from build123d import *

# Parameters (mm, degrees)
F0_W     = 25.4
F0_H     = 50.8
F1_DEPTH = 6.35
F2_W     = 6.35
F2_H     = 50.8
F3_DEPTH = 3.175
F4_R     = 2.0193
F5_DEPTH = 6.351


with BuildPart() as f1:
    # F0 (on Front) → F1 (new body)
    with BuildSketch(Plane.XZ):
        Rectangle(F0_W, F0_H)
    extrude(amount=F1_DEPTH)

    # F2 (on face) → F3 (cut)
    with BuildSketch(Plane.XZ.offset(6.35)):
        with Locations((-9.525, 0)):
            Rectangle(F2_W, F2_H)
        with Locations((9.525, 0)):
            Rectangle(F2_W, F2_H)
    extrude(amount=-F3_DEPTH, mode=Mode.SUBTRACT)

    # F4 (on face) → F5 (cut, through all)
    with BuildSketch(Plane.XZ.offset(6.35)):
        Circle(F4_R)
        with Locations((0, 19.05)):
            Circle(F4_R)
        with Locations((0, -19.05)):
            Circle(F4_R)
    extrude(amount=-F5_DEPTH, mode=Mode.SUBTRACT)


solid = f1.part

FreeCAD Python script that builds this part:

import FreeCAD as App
import Part
import Sketcher
Q = App.Units.Quantity


def add_polygon(sketch, points):
    """Adds a closed chain of lines whose ends are joined by coincident constraints."""
    first, n = sketch.GeometryCount, len(points)
    for a, b in zip(points, points[1:] + points[:1]):
        sketch.addGeometry(Part.LineSegment(App.Vector(*a, 0), App.Vector(*b, 0)), False)
    for i in range(n):
        sketch.addConstraint(Sketcher.Constraint("Coincident", first + i, 2, first + (i + 1) % n, 1))

doc = App.newDocument("Part")
body = doc.addObject("PartDesign::Body", "Body")

# Sketch on XZ plane
sketch1 = doc.addObject("Sketcher::SketchObject", "Sketch")
body.addObject(sketch1)
sketch1.AttachmentSupport = (doc.XZ_Plane, [""])
sketch1.MapMode = "FlatFace"
add_polygon(sketch1, [(-13, 25), (-13, -25), (13, -25), (13, 25)])  # lines 0-3
sketch1.addConstraint([
    Sketcher.Constraint("Vertical", 0),
    Sketcher.Constraint("Horizontal", 1),
    Sketcher.Constraint("Vertical", 2),
    Sketcher.Constraint("Horizontal", 3),
    Sketcher.Constraint("Symmetric", 0, 2, 2, 2, -1, 1),
    Sketcher.Constraint("DistanceX", 1, 1, 1, 2, Q("1 in")),
    Sketcher.Constraint("DistanceY", 0, 2, 0, 1, Q("2 in")),
])
pad1 = doc.addObject("PartDesign::Pad", "Pad")
body.addObject(pad1)
pad1.Profile = sketch1
pad1.Length = Q("0.25 in")

# Sketch on XZ plane
sketch2 = doc.addObject("Sketcher::SketchObject", "Sketch001")
body.addObject(sketch2)
sketch2.AttachmentSupport = (doc.XZ_Plane, [""])
sketch2.MapMode = "FlatFace"
sketch2.AttachmentOffset = App.Placement(App.Vector(0, 0, 0.25 * 25.4), App.Rotation())
add_polygon(sketch2, [(-13, 25), (-13, -25), (-6, -25), (-6, 25)])  # lines 0-3
add_polygon(sketch2, [(6, 25), (6, -25), (13, -25), (13, 25)])  # lines 4-7
sketch2.addConstraint([
    Sketcher.Constraint("Vertical", 0),
    Sketcher.Constraint("Horizontal", 1),
    Sketcher.Constraint("Vertical", 2),
    Sketcher.Constraint("Horizontal", 3),
    Sketcher.Constraint("Vertical", 4),
    Sketcher.Constraint("Horizontal", 5),
    Sketcher.Constraint("Vertical", 6),
    Sketcher.Constraint("Horizontal", 7),
    Sketcher.Constraint("Symmetric", 2, 2, 4, 2, -1, 1),
    Sketcher.Constraint("Symmetric", 0, 2, 6, 2, -1, 1),
    Sketcher.Constraint("Horizontal", 1, 2, 4, 2),
    Sketcher.Constraint("DistanceY", 0, 2, 0, 1, Q("2 in")),
    Sketcher.Constraint("DistanceX", 0, 2, 5, 2, Q("1 in")),
    Sketcher.Constraint("DistanceX", 1, 1, 1, 2, Q("0.25 in")),
])
pocket1 = doc.addObject("PartDesign::Pocket", "Pocket")
body.addObject(pocket1)
pocket1.Profile = sketch2
pocket1.Length = Q("0.125 in")

# Sketch on XZ plane
sketch3 = doc.addObject("Sketcher::SketchObject", "Sketch002")
body.addObject(sketch3)
sketch3.AttachmentSupport = (doc.XZ_Plane, [""])
sketch3.MapMode = "FlatFace"
sketch3.AttachmentOffset = App.Placement(App.Vector(0, 0, 0.25 * 25.4), App.Rotation())
sketch3.addGeometry([
    Part.Circle(App.Vector(0, 0, 0), App.Vector(0, 0, 1), 2),
    Part.Circle(App.Vector(0, 19.1, 0), App.Vector(0, 0, 1), 2),
    Part.Circle(App.Vector(0, -19.1, 0), App.Vector(0, 0, 1), 2),
], False)
sketch3.addConstraint([
    Sketcher.Constraint("Coincident", 0, 3, -1, 1),
    Sketcher.Constraint("Equal", 0, 1),
    Sketcher.Constraint("Equal", 1, 2),
    Sketcher.Constraint("Symmetric", 1, 3, 2, 3, -1, 1),
    Sketcher.Constraint("PointOnObject", 1, 3, -2),
    Sketcher.Constraint("Diameter", 0, Q("0.159 in")),
    Sketcher.Constraint("DistanceY", 2, 3, 1, 3, Q("1.5 in")),
])
pocket2 = doc.addObject("PartDesign::Pocket", "Pocket001")
body.addObject(pocket2)
pocket2.Profile = sketch3
pocket2.Type = "ThroughAll"

doc.recompute()
